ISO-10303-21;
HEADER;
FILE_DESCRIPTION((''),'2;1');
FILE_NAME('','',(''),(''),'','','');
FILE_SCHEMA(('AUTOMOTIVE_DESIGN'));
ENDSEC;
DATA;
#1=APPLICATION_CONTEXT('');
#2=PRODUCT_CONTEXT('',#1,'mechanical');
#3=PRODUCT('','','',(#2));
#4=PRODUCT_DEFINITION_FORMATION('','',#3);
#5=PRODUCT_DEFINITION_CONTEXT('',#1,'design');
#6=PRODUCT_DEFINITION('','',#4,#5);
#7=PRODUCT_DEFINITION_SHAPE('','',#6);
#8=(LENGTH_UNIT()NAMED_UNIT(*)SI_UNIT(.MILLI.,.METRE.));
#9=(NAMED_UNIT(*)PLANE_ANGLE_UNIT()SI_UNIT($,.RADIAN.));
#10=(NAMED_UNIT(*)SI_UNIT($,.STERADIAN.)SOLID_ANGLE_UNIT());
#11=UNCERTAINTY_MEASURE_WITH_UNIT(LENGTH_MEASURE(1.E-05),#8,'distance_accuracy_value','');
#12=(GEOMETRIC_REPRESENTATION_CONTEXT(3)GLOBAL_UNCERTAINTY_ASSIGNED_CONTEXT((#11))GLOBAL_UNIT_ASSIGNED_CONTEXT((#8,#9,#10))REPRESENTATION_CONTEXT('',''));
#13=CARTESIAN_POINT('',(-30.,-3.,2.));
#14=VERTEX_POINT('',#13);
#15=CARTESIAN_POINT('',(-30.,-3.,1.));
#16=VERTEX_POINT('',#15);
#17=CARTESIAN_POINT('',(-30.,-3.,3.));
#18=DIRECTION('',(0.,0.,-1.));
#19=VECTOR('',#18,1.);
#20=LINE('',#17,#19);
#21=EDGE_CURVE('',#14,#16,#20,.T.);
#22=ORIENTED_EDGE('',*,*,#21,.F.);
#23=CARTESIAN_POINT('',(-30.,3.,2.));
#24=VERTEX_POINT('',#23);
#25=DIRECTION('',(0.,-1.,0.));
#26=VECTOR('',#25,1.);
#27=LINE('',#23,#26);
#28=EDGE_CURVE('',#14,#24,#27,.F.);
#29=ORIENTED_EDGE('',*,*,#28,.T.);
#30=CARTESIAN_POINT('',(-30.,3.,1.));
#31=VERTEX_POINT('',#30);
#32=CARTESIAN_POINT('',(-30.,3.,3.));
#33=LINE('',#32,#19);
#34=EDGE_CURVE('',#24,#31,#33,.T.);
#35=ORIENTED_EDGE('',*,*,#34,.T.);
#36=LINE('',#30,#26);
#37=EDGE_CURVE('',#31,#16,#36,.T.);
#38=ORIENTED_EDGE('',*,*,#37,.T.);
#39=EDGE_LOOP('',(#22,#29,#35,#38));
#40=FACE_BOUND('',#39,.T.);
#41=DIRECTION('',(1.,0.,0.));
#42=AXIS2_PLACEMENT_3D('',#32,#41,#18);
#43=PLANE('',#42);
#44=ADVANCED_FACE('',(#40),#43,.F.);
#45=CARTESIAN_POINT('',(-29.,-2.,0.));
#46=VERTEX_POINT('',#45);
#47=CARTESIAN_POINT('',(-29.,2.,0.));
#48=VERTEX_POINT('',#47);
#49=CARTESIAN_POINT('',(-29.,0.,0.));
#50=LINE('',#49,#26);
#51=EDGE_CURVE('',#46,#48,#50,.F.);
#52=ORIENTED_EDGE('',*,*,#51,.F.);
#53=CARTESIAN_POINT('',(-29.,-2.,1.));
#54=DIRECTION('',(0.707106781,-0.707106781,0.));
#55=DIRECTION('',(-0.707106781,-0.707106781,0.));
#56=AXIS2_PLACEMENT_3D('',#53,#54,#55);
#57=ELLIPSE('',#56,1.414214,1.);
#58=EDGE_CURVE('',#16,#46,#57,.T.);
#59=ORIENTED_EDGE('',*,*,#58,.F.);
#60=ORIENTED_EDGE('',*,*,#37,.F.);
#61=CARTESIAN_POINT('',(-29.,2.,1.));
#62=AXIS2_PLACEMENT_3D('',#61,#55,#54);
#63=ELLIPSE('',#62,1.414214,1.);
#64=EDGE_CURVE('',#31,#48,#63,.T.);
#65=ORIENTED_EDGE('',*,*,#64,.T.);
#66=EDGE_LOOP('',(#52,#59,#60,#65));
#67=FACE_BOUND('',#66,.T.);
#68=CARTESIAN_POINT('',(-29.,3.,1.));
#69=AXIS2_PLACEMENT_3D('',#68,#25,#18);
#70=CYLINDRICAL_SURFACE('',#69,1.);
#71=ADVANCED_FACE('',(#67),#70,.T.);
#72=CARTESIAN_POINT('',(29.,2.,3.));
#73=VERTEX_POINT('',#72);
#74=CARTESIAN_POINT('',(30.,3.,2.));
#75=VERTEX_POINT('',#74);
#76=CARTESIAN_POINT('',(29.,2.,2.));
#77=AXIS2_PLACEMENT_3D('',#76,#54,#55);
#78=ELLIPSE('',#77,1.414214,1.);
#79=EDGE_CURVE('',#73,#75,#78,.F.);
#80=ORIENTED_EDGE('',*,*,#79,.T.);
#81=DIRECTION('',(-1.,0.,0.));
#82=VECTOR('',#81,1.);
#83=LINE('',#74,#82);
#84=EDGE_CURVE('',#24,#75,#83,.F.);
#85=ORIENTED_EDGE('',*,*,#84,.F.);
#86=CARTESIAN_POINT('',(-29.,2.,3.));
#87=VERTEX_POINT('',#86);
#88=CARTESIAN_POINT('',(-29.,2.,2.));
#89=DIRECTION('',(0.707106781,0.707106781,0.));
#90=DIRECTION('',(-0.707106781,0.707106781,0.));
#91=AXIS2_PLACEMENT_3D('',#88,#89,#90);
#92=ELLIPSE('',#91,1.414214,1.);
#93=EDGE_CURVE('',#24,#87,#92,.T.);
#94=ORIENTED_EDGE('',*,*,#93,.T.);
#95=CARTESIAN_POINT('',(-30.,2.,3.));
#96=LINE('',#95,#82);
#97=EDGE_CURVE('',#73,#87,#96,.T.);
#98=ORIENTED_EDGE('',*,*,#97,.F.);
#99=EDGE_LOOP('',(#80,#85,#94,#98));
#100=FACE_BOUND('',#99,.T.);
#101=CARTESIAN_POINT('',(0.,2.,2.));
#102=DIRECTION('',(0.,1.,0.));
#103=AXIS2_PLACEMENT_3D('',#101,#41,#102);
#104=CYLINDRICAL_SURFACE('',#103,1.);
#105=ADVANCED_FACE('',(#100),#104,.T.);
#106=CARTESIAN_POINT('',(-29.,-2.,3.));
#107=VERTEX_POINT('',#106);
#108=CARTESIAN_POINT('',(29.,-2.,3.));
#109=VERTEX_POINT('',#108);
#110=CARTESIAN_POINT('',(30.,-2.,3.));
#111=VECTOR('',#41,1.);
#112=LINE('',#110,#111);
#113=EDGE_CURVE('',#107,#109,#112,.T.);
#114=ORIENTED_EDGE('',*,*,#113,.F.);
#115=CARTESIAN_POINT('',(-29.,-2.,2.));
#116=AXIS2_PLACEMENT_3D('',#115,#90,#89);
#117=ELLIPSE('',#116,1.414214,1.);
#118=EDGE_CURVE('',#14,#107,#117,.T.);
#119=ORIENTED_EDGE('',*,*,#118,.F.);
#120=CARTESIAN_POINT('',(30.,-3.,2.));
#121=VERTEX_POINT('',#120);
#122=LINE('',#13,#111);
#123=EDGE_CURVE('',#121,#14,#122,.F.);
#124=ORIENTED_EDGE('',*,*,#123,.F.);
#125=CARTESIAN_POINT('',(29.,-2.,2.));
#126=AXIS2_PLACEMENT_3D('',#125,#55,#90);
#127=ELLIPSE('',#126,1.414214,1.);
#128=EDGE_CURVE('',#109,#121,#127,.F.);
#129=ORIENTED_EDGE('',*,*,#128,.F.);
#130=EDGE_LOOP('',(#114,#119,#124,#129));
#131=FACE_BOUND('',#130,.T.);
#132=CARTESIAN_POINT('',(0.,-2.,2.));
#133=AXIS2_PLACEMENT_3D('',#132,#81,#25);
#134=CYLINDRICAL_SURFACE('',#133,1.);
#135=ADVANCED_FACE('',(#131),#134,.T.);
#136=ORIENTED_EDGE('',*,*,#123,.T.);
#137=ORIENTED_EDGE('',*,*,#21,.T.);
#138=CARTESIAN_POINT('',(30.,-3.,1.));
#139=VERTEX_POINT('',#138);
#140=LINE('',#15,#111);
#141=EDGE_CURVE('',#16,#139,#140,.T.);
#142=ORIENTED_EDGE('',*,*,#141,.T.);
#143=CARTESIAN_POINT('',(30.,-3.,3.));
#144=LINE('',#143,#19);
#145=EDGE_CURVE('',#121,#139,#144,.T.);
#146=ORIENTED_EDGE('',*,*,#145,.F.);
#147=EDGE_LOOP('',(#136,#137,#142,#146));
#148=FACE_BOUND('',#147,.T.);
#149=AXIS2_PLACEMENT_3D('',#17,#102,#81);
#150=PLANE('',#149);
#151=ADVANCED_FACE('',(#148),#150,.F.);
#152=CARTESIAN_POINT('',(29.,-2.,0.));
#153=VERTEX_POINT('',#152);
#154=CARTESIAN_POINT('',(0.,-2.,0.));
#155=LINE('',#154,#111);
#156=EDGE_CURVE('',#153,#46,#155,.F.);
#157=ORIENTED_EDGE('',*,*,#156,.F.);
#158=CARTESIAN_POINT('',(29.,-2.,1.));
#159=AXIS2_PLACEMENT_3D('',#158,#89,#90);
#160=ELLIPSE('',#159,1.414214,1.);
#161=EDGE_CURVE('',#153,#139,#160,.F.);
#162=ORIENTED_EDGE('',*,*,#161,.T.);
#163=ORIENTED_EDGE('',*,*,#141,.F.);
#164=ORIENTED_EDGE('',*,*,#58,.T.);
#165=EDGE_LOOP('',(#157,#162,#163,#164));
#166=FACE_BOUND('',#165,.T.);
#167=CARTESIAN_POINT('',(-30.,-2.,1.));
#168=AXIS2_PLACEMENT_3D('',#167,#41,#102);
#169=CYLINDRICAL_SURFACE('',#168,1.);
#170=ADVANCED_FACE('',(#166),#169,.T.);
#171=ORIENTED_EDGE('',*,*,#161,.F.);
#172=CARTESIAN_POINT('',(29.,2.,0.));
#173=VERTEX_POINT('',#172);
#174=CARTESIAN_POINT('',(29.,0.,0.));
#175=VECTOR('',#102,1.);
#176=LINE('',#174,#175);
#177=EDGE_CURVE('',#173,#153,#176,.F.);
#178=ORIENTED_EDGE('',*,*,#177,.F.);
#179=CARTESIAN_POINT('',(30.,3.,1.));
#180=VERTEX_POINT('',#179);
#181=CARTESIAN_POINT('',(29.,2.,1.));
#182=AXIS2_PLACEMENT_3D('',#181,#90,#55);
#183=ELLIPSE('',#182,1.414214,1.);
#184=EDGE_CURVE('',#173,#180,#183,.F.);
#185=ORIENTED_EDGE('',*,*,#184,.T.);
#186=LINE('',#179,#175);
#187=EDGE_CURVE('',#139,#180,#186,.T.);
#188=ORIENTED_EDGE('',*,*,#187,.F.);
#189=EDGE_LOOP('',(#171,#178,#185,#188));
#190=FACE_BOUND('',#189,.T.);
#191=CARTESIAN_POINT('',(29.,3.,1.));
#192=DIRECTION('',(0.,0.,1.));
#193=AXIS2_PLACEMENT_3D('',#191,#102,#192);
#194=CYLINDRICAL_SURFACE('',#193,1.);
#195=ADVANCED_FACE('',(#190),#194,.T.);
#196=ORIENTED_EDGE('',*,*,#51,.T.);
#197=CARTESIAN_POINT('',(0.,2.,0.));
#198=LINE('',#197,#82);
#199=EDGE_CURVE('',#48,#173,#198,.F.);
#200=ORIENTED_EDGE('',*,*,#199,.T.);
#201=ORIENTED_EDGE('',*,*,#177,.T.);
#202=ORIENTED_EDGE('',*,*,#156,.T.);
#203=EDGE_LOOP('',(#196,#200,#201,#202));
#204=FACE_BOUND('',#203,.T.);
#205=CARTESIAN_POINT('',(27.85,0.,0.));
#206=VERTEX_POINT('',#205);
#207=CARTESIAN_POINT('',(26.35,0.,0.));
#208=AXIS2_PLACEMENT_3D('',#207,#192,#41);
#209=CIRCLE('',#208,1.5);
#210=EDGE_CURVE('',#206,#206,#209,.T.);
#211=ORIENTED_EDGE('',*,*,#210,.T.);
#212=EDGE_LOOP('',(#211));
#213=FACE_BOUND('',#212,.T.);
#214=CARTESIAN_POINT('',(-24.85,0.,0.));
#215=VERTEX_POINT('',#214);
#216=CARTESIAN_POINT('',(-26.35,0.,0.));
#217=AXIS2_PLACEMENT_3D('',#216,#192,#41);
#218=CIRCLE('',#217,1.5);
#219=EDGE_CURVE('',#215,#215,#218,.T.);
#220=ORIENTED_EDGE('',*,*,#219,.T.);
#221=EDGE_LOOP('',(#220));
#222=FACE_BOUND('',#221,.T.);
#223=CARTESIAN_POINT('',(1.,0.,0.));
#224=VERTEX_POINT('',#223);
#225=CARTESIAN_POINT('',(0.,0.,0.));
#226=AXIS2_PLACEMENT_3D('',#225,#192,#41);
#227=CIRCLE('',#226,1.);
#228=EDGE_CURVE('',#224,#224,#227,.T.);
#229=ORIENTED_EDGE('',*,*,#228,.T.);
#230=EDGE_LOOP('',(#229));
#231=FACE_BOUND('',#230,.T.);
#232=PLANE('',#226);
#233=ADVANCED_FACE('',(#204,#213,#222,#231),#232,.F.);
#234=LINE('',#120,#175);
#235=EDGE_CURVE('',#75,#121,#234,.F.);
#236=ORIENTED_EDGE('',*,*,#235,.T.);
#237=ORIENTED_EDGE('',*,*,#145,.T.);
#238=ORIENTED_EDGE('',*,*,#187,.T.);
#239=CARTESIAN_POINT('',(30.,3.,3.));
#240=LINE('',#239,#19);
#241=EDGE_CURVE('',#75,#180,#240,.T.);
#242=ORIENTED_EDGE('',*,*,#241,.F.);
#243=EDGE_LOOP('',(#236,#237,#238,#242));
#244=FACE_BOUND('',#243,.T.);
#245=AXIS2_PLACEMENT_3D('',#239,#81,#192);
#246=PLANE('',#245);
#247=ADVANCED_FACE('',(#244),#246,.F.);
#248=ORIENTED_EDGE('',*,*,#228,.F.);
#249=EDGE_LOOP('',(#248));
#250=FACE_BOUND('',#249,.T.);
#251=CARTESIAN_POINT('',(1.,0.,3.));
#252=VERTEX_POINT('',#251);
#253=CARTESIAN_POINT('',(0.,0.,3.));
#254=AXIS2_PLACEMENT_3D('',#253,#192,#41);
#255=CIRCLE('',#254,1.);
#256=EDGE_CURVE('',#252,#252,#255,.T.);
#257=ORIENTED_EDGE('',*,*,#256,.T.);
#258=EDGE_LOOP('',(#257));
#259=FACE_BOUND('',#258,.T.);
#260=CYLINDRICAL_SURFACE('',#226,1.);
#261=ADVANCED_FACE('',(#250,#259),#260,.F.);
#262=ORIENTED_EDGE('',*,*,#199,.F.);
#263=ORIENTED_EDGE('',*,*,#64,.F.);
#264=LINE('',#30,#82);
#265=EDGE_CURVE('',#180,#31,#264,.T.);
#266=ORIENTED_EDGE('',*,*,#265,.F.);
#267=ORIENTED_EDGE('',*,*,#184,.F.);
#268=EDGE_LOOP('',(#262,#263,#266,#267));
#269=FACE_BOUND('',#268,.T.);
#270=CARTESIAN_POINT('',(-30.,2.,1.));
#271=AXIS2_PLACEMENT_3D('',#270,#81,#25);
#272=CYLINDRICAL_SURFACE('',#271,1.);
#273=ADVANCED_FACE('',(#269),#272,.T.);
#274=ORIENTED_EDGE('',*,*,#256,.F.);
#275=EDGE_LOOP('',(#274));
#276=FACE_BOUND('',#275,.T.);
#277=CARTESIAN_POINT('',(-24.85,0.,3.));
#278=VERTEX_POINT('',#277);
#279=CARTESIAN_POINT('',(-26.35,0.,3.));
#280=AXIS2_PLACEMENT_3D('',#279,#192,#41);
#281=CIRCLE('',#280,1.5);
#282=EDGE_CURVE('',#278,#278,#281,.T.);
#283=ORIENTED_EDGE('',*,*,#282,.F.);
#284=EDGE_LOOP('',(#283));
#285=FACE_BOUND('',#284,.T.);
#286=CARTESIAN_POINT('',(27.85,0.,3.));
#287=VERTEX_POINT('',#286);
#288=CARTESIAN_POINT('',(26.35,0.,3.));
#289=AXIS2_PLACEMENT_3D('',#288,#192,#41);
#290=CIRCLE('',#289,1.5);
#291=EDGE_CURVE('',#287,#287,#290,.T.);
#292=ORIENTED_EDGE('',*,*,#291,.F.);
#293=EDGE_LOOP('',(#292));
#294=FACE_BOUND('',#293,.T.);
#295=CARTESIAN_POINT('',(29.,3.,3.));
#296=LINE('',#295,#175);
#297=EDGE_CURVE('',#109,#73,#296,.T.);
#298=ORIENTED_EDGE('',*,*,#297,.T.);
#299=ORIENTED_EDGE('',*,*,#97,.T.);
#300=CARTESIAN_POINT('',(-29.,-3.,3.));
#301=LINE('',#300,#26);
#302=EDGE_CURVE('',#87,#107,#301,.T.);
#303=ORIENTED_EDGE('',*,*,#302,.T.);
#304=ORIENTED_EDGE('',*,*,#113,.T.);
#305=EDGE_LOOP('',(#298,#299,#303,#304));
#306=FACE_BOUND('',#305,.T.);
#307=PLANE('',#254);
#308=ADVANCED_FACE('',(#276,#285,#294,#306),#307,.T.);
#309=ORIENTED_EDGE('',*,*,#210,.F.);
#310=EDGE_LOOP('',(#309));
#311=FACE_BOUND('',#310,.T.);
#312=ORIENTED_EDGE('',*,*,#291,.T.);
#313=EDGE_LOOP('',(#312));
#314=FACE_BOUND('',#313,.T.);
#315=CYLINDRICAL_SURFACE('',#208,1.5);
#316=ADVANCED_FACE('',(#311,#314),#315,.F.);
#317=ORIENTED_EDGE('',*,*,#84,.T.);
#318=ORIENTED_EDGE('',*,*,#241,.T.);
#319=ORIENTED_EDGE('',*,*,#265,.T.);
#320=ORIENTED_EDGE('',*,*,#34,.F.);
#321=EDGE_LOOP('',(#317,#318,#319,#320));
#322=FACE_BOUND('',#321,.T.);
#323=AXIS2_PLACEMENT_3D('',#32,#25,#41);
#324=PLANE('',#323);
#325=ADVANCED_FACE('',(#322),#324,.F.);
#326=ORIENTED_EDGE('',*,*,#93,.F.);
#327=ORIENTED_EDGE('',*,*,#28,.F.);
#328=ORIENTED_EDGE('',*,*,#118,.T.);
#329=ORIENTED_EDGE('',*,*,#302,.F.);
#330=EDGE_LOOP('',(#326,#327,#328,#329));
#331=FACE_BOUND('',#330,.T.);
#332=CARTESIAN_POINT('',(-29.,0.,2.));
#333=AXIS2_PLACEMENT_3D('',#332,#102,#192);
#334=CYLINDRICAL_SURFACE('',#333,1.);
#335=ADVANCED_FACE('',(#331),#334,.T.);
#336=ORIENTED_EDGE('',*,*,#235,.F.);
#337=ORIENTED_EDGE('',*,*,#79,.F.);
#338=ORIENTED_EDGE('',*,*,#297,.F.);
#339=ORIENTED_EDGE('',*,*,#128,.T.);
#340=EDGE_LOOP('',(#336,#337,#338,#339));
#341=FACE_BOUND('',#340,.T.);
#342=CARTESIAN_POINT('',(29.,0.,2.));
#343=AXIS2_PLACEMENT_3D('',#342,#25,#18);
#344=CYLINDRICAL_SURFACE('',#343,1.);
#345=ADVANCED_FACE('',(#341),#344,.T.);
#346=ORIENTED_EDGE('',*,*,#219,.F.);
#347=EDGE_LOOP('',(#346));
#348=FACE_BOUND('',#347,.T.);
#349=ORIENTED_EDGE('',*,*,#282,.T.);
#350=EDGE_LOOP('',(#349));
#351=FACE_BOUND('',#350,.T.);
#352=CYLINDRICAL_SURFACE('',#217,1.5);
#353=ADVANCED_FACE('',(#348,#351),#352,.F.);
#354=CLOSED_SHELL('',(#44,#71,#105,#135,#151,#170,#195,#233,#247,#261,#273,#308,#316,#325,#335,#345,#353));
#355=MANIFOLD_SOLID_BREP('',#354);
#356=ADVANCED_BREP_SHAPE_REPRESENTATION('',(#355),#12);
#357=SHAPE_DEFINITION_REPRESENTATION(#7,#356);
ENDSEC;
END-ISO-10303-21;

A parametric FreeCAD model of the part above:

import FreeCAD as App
import Part
import Sketcher
Q = App.Units.Quantity


def edges_at(feature, points):
    """Names of the edges that pass closest to the given points."""
    edges = feature.Shape.Edges
    near = lambda p: min(range(len(edges)), key=lambda i: edges[i].distToShape(Part.Vertex(*p))[0])
    return sorted({f"Edge{near(p) + 1}" for p in points})


def add_polygon(sketch, points):
    """Adds a closed chain of lines whose ends are joined by coincident constraints."""
    first, n = sketch.GeometryCount, len(points)
    for a, b in zip(points, points[1:] + points[:1]):
        sketch.addGeometry(Part.LineSegment(App.Vector(*a, 0), App.Vector(*b, 0)), False)
    for i in range(n):
        sketch.addConstraint(Sketcher.Constraint("Coincident", first + i, 2, first + (i + 1) % n, 1))

doc = App.newDocument("Part")
params = doc.addObject("Spreadsheet::Sheet", "Params")
for row, (alias, value) in enumerate([
    ("sketch1_width", "60 mm"),
    ("sketch1_height", "6 mm"),
    ("pad1_length", "3 mm"),
    ("fillet_radius", "1 mm"),
    ("sketch2_diameter", "3 mm"),
    ("sketch2_diameter2", "2 mm"),
], start=1):
    params.set(f"A{row}", alias)
    params.set(f"B{row}", "=" + value)
    params.setAlias(f"B{row}", alias)

body = doc.addObject("PartDesign::Body", "Body")

# Sketch on XY plane
sketch1 = body.newObject("Sketcher::SketchObject", "Sketch")
sketch1.AttachmentSupport = (doc.getObject("XY_Plane"), [""])
sketch1.MapMode = "FlatFace"
add_polygon(sketch1, [(-30, 3), (-30, -3), (30, -3), (30, 3)])  # lines 0-3
sketch1.addConstraint([
    Sketcher.Constraint("Vertical", 0),
    Sketcher.Constraint("Horizontal", 1),
    Sketcher.Constraint("Vertical", 2),
    Sketcher.Constraint("Horizontal", 3),
    Sketcher.Constraint("Symmetric", 0, 2, 2, 2, -1, 1),
    Sketcher.Constraint("DistanceX", 1, 1, 1, 2, Q("60 mm")),
    Sketcher.Constraint("DistanceY", 0, 2, 0, 1, Q("6 mm")),
])
sketch1.setExpression("Constraints[9]", "Params.sketch1_width")
sketch1.setExpression("Constraints[10]", "Params.sketch1_height")
pad1 = body.newObject("PartDesign::Pad", "Pad")
pad1.Profile = sketch1
pad1.setExpression("Length", "Params.pad1_length")
doc.recompute()

fillet = body.newObject("PartDesign::Fillet", "Fillet")
fillet.Base = (pad1, edges_at(pad1, [
    (30, 0, 3),
    (0, 3, 3),
    (-30, 0, 3),
    (0, 3, 0),
    (30, 0, 0),
    (0, -3, 0),
    (-30, 0, 0),
    (0, -3, 3),
]))
fillet.setExpression("Radius", "Params.fillet_radius")

# Sketch on XY plane
sketch2 = body.newObject("Sketcher::SketchObject", "Sketch001")
sketch2.AttachmentSupport = (doc.getObject("XY_Plane"), [""])
sketch2.MapMode = "FlatFace"
sketch2.AttachmentOffset = App.Placement(App.Vector(0, 0, 3), App.Rotation())
sketch2.addGeometry([
    Part.Circle(App.Vector(-26.4, 0, 0), App.Vector(0, 0, 1), 1.5),
    Part.Circle(App.Vector(26.4, 0, 0), App.Vector(0, 0, 1), 1.5),
    Part.Circle(App.Vector(0, 0, 0), App.Vector(0, 0, 1), 1),
], False)
sketch2.addConstraint([
    Sketcher.Constraint("Coincident", 2, 3, -1, 1),
    Sketcher.Constraint("Equal", 0, 1),
    Sketcher.Constraint("Symmetric", 0, 3, 1, 3, -1, 1),
    Sketcher.Constraint("PointOnObject", 0, 3, -1),
    Sketcher.Constraint("Diameter", 0, Q("3 mm")),
    Sketcher.Constraint("Diameter", 2, Q("2 mm")),
    Sketcher.Constraint("DistanceX", 0, 3, 1, 3, Q("52.7 mm")),
])
sketch2.setExpression("Constraints[4]", "Params.sketch2_diameter")
sketch2.setExpression("Constraints[5]", "Params.sketch2_diameter2")
pocket1 = body.newObject("PartDesign::Pocket", "Pocket")
pocket1.Profile = sketch2
pocket1.Type = "ThroughAll"

doc.recompute()
